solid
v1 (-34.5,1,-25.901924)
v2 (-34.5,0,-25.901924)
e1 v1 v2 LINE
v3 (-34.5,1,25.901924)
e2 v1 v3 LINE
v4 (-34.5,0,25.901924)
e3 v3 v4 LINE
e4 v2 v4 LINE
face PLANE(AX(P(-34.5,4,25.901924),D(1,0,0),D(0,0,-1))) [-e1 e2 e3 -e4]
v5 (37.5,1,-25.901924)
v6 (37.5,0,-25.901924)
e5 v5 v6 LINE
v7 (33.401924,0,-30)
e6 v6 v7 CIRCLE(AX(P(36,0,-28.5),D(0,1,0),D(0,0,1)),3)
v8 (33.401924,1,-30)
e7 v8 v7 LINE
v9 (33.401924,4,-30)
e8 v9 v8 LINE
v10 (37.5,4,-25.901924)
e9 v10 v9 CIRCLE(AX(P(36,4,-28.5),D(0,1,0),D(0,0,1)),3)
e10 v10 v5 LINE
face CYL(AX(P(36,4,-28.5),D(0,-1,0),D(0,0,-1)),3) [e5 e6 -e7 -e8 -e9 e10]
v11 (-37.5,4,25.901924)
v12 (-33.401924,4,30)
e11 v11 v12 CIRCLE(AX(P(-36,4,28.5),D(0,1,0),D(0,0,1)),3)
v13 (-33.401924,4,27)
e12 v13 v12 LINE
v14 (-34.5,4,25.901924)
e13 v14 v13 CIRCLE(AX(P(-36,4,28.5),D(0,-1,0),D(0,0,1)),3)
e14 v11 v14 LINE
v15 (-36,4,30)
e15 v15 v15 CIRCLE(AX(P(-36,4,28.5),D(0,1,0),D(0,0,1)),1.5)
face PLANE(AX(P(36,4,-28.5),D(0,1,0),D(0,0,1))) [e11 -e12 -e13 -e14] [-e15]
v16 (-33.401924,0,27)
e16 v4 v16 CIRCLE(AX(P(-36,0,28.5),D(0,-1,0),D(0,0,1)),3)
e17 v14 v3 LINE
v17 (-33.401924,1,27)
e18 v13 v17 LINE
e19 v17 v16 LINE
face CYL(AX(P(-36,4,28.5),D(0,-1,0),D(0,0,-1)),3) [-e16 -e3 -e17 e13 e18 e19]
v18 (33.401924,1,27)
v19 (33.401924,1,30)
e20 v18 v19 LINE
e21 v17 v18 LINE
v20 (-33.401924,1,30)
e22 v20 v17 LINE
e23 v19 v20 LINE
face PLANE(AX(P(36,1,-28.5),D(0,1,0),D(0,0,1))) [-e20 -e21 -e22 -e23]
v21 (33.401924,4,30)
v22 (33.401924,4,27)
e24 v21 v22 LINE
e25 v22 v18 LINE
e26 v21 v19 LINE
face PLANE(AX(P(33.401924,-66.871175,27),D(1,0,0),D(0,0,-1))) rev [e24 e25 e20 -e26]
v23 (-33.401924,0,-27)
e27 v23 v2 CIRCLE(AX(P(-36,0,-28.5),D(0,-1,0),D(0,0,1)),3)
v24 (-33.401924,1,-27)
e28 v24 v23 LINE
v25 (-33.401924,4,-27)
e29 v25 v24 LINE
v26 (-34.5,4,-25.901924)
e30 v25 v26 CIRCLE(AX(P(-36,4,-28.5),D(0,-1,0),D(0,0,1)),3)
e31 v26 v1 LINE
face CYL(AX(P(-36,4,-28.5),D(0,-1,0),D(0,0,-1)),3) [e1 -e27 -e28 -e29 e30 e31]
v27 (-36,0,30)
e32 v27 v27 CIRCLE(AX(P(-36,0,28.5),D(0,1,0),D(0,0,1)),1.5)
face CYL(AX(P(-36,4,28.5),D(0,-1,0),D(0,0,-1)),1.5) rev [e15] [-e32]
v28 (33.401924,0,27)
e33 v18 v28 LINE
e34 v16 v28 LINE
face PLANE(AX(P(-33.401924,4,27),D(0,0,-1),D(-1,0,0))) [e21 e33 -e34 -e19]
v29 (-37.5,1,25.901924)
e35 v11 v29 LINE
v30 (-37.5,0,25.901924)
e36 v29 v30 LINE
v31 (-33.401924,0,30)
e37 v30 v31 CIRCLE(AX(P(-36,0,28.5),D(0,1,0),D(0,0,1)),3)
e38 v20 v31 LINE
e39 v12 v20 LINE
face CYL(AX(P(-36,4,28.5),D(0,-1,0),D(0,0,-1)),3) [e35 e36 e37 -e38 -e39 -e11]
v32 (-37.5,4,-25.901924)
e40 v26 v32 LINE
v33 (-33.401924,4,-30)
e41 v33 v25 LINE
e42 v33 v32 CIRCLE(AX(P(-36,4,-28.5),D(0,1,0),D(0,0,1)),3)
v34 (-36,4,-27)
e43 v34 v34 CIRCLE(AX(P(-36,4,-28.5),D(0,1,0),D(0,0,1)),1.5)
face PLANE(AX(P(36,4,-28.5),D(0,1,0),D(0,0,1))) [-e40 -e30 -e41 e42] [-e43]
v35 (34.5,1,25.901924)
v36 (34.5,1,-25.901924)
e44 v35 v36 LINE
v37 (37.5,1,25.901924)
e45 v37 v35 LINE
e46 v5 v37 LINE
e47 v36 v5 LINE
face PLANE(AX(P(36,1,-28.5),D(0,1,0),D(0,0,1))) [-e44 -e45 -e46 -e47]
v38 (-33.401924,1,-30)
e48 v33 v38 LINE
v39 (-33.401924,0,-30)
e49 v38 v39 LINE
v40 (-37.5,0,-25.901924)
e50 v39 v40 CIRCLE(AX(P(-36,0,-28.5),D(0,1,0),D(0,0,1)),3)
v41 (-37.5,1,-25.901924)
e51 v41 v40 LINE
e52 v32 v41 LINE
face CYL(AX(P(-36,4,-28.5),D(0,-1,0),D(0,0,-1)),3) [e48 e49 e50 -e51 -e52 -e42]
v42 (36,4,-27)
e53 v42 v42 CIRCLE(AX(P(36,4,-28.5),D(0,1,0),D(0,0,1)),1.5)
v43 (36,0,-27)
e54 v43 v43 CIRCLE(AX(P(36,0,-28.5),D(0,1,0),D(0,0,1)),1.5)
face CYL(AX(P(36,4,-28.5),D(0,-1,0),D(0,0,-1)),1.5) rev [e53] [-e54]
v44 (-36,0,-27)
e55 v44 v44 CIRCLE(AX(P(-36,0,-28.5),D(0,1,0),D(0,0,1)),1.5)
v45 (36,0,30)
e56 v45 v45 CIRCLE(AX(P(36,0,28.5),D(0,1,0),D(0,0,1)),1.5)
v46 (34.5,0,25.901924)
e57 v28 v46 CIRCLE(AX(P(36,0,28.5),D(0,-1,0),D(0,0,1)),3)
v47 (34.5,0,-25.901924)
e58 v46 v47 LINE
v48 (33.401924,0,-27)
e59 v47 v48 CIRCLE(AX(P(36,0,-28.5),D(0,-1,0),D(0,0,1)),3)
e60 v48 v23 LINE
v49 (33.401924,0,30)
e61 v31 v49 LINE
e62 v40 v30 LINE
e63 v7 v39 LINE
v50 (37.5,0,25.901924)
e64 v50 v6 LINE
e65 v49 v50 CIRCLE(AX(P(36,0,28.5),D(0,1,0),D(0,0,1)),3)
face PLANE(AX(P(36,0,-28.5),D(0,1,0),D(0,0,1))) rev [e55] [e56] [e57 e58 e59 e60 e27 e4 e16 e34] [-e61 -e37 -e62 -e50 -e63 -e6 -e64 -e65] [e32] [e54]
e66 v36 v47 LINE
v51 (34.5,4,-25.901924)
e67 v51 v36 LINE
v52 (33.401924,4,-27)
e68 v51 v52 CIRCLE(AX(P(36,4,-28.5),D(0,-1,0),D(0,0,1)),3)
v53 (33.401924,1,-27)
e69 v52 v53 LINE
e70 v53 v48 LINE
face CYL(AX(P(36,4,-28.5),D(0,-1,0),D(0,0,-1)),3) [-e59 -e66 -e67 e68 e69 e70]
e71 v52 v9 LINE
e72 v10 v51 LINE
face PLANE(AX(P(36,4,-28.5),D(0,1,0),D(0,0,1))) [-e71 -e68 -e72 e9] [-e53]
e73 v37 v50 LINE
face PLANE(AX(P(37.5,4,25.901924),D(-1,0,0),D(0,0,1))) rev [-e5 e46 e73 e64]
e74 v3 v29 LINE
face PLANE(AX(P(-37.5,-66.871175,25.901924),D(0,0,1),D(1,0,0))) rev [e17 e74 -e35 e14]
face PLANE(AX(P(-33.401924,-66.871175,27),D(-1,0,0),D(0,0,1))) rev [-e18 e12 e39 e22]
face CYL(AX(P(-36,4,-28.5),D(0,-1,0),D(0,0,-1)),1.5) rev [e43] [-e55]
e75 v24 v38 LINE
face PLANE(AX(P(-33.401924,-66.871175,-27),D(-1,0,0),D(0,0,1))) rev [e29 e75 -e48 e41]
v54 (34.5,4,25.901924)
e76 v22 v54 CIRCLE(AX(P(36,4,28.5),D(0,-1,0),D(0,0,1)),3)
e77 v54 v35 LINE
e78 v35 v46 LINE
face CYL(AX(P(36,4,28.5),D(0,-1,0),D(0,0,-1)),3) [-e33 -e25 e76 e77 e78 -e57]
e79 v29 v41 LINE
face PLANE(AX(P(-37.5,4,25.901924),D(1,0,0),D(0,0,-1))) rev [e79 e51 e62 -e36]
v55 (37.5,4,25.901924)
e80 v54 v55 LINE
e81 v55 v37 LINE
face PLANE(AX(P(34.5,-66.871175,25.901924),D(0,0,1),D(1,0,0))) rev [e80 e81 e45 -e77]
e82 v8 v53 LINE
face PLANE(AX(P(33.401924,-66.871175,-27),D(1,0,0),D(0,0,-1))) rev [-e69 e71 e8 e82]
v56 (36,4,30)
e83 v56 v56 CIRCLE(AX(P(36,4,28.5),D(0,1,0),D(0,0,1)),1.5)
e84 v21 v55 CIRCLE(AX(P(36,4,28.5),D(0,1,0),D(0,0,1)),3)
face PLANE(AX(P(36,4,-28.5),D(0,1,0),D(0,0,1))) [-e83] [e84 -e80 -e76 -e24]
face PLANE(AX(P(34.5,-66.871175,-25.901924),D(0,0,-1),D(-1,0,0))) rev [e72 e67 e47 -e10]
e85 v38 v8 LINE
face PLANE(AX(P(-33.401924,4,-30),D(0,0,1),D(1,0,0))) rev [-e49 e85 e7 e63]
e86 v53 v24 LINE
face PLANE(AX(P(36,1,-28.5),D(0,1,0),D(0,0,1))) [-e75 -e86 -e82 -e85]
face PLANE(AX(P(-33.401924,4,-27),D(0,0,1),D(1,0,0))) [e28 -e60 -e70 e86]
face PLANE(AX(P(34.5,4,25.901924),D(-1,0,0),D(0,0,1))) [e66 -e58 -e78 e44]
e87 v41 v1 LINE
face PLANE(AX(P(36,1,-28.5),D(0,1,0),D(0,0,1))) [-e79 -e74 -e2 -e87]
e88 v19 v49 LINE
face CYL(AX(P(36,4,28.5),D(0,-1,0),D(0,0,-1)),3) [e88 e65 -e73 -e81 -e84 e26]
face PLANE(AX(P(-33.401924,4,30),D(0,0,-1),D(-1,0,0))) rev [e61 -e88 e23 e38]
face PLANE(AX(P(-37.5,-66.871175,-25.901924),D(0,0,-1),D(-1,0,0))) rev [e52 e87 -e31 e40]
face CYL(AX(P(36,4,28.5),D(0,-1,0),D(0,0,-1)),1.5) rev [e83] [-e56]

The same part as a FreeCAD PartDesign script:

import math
import FreeCAD as App
import Part
import Sketcher


def add_polygon(sketch, points):
    """Adds a closed chain of lines whose ends are joined by coincident constraints."""
    first, n = sketch.GeometryCount, len(points)
    for a, b in zip(points, points[1:] + points[:1]):
        sketch.addGeometry(Part.LineSegment(App.Vector(*a, 0), App.Vector(*b, 0)), False)
    for i in range(n):
        sketch.addConstraint(Sketcher.Constraint("Coincident", first + i, 2, first + (i + 1) % n, 1))

doc = App.newDocument("Part")
params = doc.addObject("Spreadsheet::Sheet", "Params")
for row, (alias, value) in enumerate([
    ("sketch1_diameter", "3 mm"),
    ("sketch1_radius", "3 mm"),
    ("pad1_length", "4 mm"),
    ("sketch2_width", "3 mm"),
    ("pocket1_length", "3 mm"),
], start=1):
    params.set(f"A{row}", alias)
    params.set(f"B{row}", "=" + value)
    params.setAlias(f"B{row}", alias)

body = doc.addObject("PartDesign::Body", "Body")

sketch1 = body.newObject("Sketcher::SketchObject", "Sketch")
sketch1.AttachmentSupport = (doc.getObject("XZ_Plane"), [""])
sketch1.MapMode = "FlatFace"
sketch1.addGeometry([
    Part.LineSegment(App.Vector(33.401924, -30, 0), App.Vector(-33.401924, -30, 0)),
    Part.ArcOfCircle(Part.Circle(App.Vector(-36, -28.5, 0), App.Vector(0, 0, 1), 3), math.radians(120), math.radians(330)),
    Part.LineSegment(App.Vector(-37.5, -25.901924, 0), App.Vector(-37.5, 25.901924, 0)),
    Part.ArcOfCircle(Part.Circle(App.Vector(-36, 28.5, 0), App.Vector(0, 0, 1), 3), math.radians(30), math.radians(240)),
    Part.LineSegment(App.Vector(-33.401924, 30, 0), App.Vector(33.401924, 30, 0)),
    Part.ArcOfCircle(Part.Circle(App.Vector(36, 28.5, 0), App.Vector(0, 0, 1), 3), math.radians(-60), math.radians(150)),
    Part.LineSegment(App.Vector(37.5, 25.901924, 0), App.Vector(37.5, -25.901924, 0)),
    Part.ArcOfCircle(Part.Circle(App.Vector(36, -28.5, 0), App.Vector(0, 0, 1), 3), math.radians(-150), math.radians(60)),
    Part.Circle(App.Vector(36, 28.5, 0), App.Vector(0, 0, 1), 1.5),
    Part.Circle(App.Vector(-36, 28.5, 0), App.Vector(0, 0, 1), 1.5),
    Part.Circle(App.Vector(36, -28.5, 0), App.Vector(0, 0, 1), 1.5),
    Part.LineSegment(App.Vector(-33.401924, -27, 0), App.Vector(33.401924, -27, 0)),
    Part.ArcOfCircle(Part.Circle(App.Vector(36, -28.5, 0), App.Vector(0, 0, 1), 3), math.radians(120), math.radians(150)),
    Part.LineSegment(App.Vector(34.5, -25.901924, 0), App.Vector(34.5, 25.901924, 0)),
    Part.ArcOfCircle(Part.Circle(App.Vector(36, 28.5, 0), App.Vector(0, 0, 1), 3), math.radians(-150), math.radians(-120)),
    Part.LineSegment(App.Vector(33.401924, 27, 0), App.Vector(-33.401924, 27, 0)),
    Part.ArcOfCircle(Part.Circle(App.Vector(-36, 28.5, 0), App.Vector(0, 0, 1), 3), math.radians(-60), math.radians(-30)),
    Part.LineSegment(App.Vector(-34.5, 25.901924, 0), App.Vector(-34.5, -25.901924, 0)),
    Part.ArcOfCircle(Part.Circle(App.Vector(-36, -28.5, 0), App.Vector(0, 0, 1), 3), math.radians(30), math.radians(60)),
    Part.Circle(App.Vector(-36, -28.5, 0), App.Vector(0, 0, 1), 1.5),
], False)
sketch1.addConstraint([
    Sketcher.Constraint("Coincident", 0, 2, 1, 2),
    Sketcher.Constraint("Coincident", 1, 1, 2, 1),
    Sketcher.Constraint("Coincident", 2, 2, 3, 2),
    Sketcher.Constraint("Coincident", 3, 1, 4, 1),
    Sketcher.Constraint("Coincident", 4, 2, 5, 2),
    Sketcher.Constraint("Coincident", 5, 1, 6, 1),
    Sketcher.Constraint("Coincident", 6, 2, 7, 2),
    Sketcher.Constraint("Coincident", 7, 1, 0, 1),
    Sketcher.Constraint("Coincident", 11, 2, 12, 2),
    Sketcher.Constraint("Coincident", 12, 1, 13, 1),
    Sketcher.Constraint("Coincident", 13, 2, 14, 2),
    Sketcher.Constraint("Coincident", 14, 1, 15, 1),
    Sketcher.Constraint("Coincident", 15, 2, 16, 2),
    Sketcher.Constraint("Coincident", 16, 1, 17, 1),
    Sketcher.Constraint("Coincident", 17, 2, 18, 2),
    Sketcher.Constraint("Coincident", 18, 1, 11, 1),
    Sketcher.Constraint("Horizontal", 0),
    Sketcher.Constraint("Vertical", 2),
    Sketcher.Constraint("Horizontal", 4),
    Sketcher.Constraint("Vertical", 6),
    Sketcher.Constraint("Horizontal", 11),
    Sketcher.Constraint("Vertical", 13),
    Sketcher.Constraint("Horizontal", 15),
    Sketcher.Constraint("Vertical", 17),
    Sketcher.Constraint("Coincident", 8, 3, 5, 3),
    Sketcher.Constraint("Coincident", 9, 3, 3, 3),
    Sketcher.Constraint("Coincident", 10, 3, 7, 3),
    Sketcher.Constraint("Coincident", 12, 3, 7, 3),
    Sketcher.Constraint("Coincident", 14, 3, 5, 3),
    Sketcher.Constraint("Coincident", 16, 3, 3, 3),
    Sketcher.Constraint("Coincident", 18, 3, 1, 3),
    Sketcher.Constraint("Coincident", 19, 3, 1, 3),
    Sketcher.Constraint("Equal", 1, 3),
    Sketcher.Constraint("Equal", 3, 5),
    Sketcher.Constraint("Equal", 5, 7),
    Sketcher.Constraint("Equal", 8, 9),
    Sketcher.Constraint("Equal", 9, 10),
    Sketcher.Constraint("Equal", 7, 12),
    Sketcher.Constraint("Equal", 12, 14),
    Sketcher.Constraint("Equal", 14, 16),
    Sketcher.Constraint("Equal", 16, 18),
    Sketcher.Constraint("Equal", 10, 19),
    Sketcher.Constraint("Symmetric", 1, 3, 5, 3, -1, 1),
    Sketcher.Constraint("Symmetric", 3, 3, 7, 3, -1, 1),
    Sketcher.Constraint("Symmetric", 3, 3, 5, 3, -2),
    Sketcher.Constraint("Horizontal", 2, 2, 5, 1),
    Sketcher.Constraint("Horizontal", 6, 2, 12, 1),
    Sketcher.Constraint("Horizontal", 13, 2, 16, 1),
    Sketcher.Constraint("Vertical", 0, 2, 3, 1),
    Sketcher.Constraint("Vertical", 7, 1, 11, 2),
    Sketcher.Constraint("Vertical", 11, 2, 14, 1),
    Sketcher.Constraint("Diameter", 8, 3.0),
    Sketcher.Constraint("Radius", 1, 3.0),
    Sketcher.Constraint("DistanceX", 1, 3, -1, 1, 36.0),
    Sketcher.Constraint("DistanceY", 0, 2, -1, 1, 30.0),
    Sketcher.Constraint("DistanceY", 11, 2, -1, 1, 27.0),
    Sketcher.Constraint("DistanceX", 12, 1, 6, 2, 3.0),
])
sketch1.setExpression("Constraints[51]", "Params.sketch1_diameter")
sketch1.setExpression("Constraints[52]", "Params.sketch1_radius")
pad1 = body.newObject("PartDesign::Pad", "Pad")
pad1.Profile = sketch1
pad1.setExpression("Length", "Params.pad1_length")
pad1.Reversed = True

sketch2 = body.newObject("Sketcher::SketchObject", "Sketch001")
sketch2.AttachmentSupport = (doc.getObject("XZ_Plane"), [""])
sketch2.MapMode = "FlatFace"
sketch2.AttachmentOffset = App.Placement(App.Vector(0, 0, -4), App.Rotation())
add_polygon(sketch2, [(-37.5, -25.901924), (-37.5, 25.901924), (-34.5, 25.901924), (-34.5, -25.901924)])
add_polygon(sketch2, [(-33.401924, 27), (-33.401924, 30), (33.401924, 30), (33.401924, 27)])
add_polygon(sketch2, [(34.5, -25.901924), (34.5, 25.901924), (37.5, 25.901924), (37.5, -25.901924)])
add_polygon(sketch2, [(-33.401924, -30), (-33.401924, -27), (33.401924, -27), (33.401924, -30)])
sketch2.addConstraint([
    Sketcher.Constraint("Vertical", 0),
    Sketcher.Constraint("Horizontal", 1),
    Sketcher.Constraint("Vertical", 2),
    Sketcher.Constraint("Horizontal", 3),
    Sketcher.Constraint("Vertical", 4),
    Sketcher.Constraint("Horizontal", 5),
    Sketcher.Constraint("Vertical", 6),
    Sketcher.Constraint("Horizontal", 7),
    Sketcher.Constraint("Vertical", 8),
    Sketcher.Constraint("Horizontal", 9),
    Sketcher.Constraint("Vertical", 10),
    Sketcher.Constraint("Horizontal", 11),
    Sketcher.Constraint("Vertical", 12),
    Sketcher.Constraint("Horizontal", 13),
    Sketcher.Constraint("Vertical", 14),
    Sketcher.Constraint("Horizontal", 15),
    Sketcher.Constraint("Symmetric", 2, 2, 8, 2, -1, 1),
    Sketcher.Constraint("Symmetric", 0, 2, 10, 2, -1, 1),
    Sketcher.Constraint("Symmetric", 6, 2, 12, 2, -1, 1),
    Sketcher.Constraint("Symmetric", 4, 2, 14, 2, -1, 1),
    Sketcher.Constraint("Horizontal", 1, 2, 8, 2),
    Sketcher.Constraint("Vertical", 7, 2, 12, 2),
    Sketcher.Constraint("Equal", 11, 4),
    Sketcher.Constraint("DistanceX", 1, 1, 1, 2, 3.0),
    Sketcher.Constraint("DistanceY", -1, 1, 4, 2, 30.0),
    Sketcher.Constraint("DistanceX", 1, 2, 8, 2, 69.0),
    Sketcher.Constraint("DistanceX", 5, 1, 5, 2, 66.803848),
    Sketcher.Constraint("DistanceY", 0, 1, 0, 2, 51.803848),
])
sketch2.setExpression("Constraints[39]", "Params.sketch2_width")
pocket1 = body.newObject("PartDesign::Pocket", "Pocket")
pocket1.Profile = sketch2
pocket1.setExpression("Length", "Params.pocket1_length")
pocket1.Reversed = True

doc.recompute()
